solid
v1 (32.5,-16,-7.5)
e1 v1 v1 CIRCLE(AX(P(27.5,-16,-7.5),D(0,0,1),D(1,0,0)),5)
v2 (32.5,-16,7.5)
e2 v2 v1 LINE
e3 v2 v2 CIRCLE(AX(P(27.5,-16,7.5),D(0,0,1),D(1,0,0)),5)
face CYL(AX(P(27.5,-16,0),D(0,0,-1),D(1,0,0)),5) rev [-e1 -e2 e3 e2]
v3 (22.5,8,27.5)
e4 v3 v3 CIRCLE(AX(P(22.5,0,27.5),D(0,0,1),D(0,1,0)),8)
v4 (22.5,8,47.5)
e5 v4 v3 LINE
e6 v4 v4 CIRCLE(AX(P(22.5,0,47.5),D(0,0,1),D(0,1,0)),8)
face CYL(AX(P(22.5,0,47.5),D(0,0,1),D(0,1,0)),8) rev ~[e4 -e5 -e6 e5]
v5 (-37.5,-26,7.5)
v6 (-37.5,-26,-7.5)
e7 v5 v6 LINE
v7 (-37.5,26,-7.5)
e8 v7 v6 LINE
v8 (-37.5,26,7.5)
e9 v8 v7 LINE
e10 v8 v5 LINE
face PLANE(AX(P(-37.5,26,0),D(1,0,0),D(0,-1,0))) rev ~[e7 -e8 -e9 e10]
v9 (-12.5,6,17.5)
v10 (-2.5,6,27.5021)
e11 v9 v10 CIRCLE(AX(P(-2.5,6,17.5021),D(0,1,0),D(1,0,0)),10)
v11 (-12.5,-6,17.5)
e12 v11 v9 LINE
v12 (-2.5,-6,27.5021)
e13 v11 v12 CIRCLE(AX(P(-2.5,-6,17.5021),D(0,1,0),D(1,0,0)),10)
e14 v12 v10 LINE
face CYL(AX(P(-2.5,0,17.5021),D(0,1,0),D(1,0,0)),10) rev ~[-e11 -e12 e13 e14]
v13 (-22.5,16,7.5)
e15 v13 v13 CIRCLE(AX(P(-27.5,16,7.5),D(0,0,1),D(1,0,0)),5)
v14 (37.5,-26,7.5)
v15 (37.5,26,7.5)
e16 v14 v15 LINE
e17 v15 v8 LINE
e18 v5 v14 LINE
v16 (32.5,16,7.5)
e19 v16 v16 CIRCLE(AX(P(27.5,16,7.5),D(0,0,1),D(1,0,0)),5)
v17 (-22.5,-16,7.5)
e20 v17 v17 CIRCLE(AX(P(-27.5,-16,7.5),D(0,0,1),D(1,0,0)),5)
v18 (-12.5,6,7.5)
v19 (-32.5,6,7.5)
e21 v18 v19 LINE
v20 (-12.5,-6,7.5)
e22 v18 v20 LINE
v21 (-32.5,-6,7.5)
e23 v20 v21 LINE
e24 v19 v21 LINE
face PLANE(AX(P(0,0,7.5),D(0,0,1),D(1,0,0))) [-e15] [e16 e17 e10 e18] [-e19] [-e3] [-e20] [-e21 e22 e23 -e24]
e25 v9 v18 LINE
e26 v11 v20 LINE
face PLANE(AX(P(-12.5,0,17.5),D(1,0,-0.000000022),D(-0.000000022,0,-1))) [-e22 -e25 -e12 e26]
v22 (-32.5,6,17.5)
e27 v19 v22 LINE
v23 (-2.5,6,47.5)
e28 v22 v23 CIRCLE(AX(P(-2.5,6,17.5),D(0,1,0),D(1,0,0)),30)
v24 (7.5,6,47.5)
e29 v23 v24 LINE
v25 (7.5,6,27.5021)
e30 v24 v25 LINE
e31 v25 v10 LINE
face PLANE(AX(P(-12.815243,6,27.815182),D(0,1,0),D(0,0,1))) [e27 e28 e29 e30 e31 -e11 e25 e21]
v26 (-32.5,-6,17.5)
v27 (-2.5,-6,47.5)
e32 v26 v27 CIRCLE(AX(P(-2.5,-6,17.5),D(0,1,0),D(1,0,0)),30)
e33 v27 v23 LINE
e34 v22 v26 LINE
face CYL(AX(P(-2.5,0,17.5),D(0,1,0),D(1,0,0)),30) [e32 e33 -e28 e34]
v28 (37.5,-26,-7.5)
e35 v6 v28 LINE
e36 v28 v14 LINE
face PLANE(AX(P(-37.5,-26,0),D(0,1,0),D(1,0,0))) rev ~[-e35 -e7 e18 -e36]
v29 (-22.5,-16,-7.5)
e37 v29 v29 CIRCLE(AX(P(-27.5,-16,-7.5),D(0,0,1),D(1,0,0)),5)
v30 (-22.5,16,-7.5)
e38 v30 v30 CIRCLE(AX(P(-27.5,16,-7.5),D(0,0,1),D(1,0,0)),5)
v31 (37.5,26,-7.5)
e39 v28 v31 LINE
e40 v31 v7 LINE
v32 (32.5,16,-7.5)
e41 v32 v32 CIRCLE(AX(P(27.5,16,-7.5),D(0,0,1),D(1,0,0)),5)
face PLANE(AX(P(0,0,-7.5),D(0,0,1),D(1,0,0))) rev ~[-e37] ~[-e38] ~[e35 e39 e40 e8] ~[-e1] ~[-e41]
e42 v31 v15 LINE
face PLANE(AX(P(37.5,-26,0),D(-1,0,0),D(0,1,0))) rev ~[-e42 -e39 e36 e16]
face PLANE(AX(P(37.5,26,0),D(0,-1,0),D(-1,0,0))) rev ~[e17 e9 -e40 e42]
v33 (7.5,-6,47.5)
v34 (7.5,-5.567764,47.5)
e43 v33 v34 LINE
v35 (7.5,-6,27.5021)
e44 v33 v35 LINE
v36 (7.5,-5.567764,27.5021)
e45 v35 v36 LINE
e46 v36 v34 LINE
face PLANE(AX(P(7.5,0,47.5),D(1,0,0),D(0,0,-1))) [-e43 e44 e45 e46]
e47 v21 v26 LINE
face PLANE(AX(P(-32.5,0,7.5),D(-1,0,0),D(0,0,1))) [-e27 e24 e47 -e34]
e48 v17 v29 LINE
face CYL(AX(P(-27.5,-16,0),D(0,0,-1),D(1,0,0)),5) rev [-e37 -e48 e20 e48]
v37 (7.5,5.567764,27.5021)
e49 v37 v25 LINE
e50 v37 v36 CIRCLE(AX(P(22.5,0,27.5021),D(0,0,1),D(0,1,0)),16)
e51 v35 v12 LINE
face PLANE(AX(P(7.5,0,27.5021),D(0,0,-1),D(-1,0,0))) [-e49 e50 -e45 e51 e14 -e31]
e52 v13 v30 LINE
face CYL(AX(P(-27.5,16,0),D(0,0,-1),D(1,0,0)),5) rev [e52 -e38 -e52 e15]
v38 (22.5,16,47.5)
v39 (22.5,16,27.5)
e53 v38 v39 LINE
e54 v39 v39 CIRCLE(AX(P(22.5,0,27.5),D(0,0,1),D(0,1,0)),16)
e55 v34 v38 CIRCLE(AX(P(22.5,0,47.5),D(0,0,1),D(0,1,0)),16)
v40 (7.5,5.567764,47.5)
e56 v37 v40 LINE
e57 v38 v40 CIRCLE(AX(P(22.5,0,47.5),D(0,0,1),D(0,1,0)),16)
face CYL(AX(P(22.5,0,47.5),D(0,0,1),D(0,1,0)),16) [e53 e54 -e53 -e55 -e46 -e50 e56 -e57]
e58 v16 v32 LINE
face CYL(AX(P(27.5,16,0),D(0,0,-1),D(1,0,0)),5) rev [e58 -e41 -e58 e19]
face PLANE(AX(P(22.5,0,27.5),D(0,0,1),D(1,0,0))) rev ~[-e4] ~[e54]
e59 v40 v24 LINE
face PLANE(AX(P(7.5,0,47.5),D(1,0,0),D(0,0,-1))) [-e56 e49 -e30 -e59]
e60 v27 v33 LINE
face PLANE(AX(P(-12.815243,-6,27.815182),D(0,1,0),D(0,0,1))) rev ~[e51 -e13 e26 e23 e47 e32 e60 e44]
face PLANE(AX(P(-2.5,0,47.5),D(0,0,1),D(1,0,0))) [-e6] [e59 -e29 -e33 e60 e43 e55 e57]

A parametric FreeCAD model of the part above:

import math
import FreeCAD as App
import Part
import Sketcher
from FreeCAD import Vector


def add_polygon(sketch, points):
    """Adds a closed chain of lines whose ends are joined by coincident constraints."""
    first, n = sketch.GeometryCount, len(points)
    for a, b in zip(points, points[1:] + points[:1]):
        sketch.addGeometry(Part.LineSegment(App.Vector(*a, 0), App.Vector(*b, 0)), False)
    for i in range(n):
        sketch.addConstraint(Sketcher.Constraint("Coincident", first + i, 2, first + (i + 1) % n, 1))

doc = App.newDocument("Part")
body = doc.addObject("PartDesign::Body", "Body")

sketch1 = body.newObject("Sketcher::SketchObject", "Sketch")
sketch1.AttachmentSupport = (doc.getObject("XY_Plane"), [""])
sketch1.MapMode = "FlatFace"
add_polygon(sketch1, [(-38, 26), (-38, -26), (38, -26), (38, 26)])
sketch1.addGeometry(Part.Circle(Vector(-28, -16, 0), Vector(0, 0, 1), 5), False)
sketch1.addGeometry(Part.Circle(Vector(28, -16, 0), Vector(0, 0, 1), 5), False)
sketch1.addGeometry(Part.Circle(Vector(-28, 16, 0), Vector(0, 0, 1), 5), False)
sketch1.addGeometry(Part.Circle(Vector(28, 16, 0), Vector(0, 0, 1), 5), False)
sketch1.addConstraint([
    Sketcher.Constraint("Vertical", 0),
    Sketcher.Constraint("Horizontal", 1),
    Sketcher.Constraint("Vertical", 2),
    Sketcher.Constraint("Horizontal", 3),
    Sketcher.Constraint("Equal", 4, 5),
    Sketcher.Constraint("Equal", 5, 6),
    Sketcher.Constraint("Equal", 6, 7),
    Sketcher.Constraint("Symmetric", 5, 3, 6, 3, -1, 1),
    Sketcher.Constraint("Symmetric", 4, 3, 7, 3, -1, 1),
    Sketcher.Constraint("Symmetric", 0, 2, 2, 2, -1, 1),
    Sketcher.Constraint("Symmetric", 4, 3, 5, 3, -2),
    Sketcher.Constraint("Diameter", 4, 10.0),
    Sketcher.Constraint("DistanceX", 1, 1, 1, 2, 75.0),
    Sketcher.Constraint("DistanceY", 0, 2, 0, 1, 52.0),
    Sketcher.Constraint("DistanceY", 4, 3, -1, 1, 16.0),
    Sketcher.Constraint("DistanceX", 4, 3, 5, 3, 55.0),
])
pad1 = body.newObject("PartDesign::Pad", "Pad")
pad1.Profile = sketch1
pad1.Length = 15
pad1.Midplane = True

sketch2 = body.newObject("Sketcher::SketchObject", "Sketch001")
sketch2.AttachmentSupport = (doc.getObject("XZ_Plane"), [""])
sketch2.MapMode = "FlatFace"
sketch2.addGeometry([
    Part.ArcOfCircle(Part.Circle(Vector(-2.5, 17.5, 0), Vector(0, 0, 1), 30), math.radians(90), math.radians(180)),
    Part.LineSegment(Vector(-32.5, 17.5, 0), Vector(-32.5, 7.5, 0)),
    Part.LineSegment(Vector(-32.5, 7.5, 0), Vector(-12.5, 7.5, 0)),
    Part.LineSegment(Vector(-12.5, 7.5, 0), Vector(-12.5, 17.5, 0)),
    Part.ArcOfCircle(Part.Circle(Vector(-2.5, 17.5021, 0), Vector(0, 0, 1), 10), math.radians(90), math.radians(180.012032)),
    Part.LineSegment(Vector(-2.5, 27.5021, 0), Vector(7.5, 27.5021, 0)),
    Part.LineSegment(Vector(7.5, 27.5021, 0), Vector(7.5, 47.5, 0)),
    Part.LineSegment(Vector(7.5, 47.5, 0), Vector(-2.5, 47.5, 0)),
], False)
sketch2.addConstraint([
    Sketcher.Constraint("Coincident", 0, 2, 1, 1),
    Sketcher.Constraint("Coincident", 1, 2, 2, 1),
    Sketcher.Constraint("Coincident", 2, 2, 3, 1),
    Sketcher.Constraint("Coincident", 3, 2, 4, 2),
    Sketcher.Constraint("Coincident", 4, 1, 5, 1),
    Sketcher.Constraint("Coincident", 5, 2, 6, 1),
    Sketcher.Constraint("Coincident", 6, 2, 7, 1),
    Sketcher.Constraint("Coincident", 7, 2, 0, 1),
    Sketcher.Constraint("Vertical", 1),
    Sketcher.Constraint("Horizontal", 2),
    Sketcher.Constraint("Vertical", 3),
    Sketcher.Constraint("Horizontal", 5),
    Sketcher.Constraint("Vertical", 6),
    Sketcher.Constraint("Horizontal", 7),
    Sketcher.Constraint("Radius", 0, 30.0),
    Sketcher.Constraint("Radius", 4, 10.0),
    Sketcher.Constraint("DistanceX", 2, 1, 2, 2, 20.0),
    Sketcher.Constraint("DistanceX", 5, 1, 5, 2, 10.0),
    Sketcher.Constraint("DistanceX", 7, 2, 7, 1, 10.0),
    Sketcher.Constraint("DistanceY", 1, 2, 1, 1, 10.0),
    Sketcher.Constraint("DistanceY", 3, 1, 3, 2, 10.0),
    Sketcher.Constraint("DistanceY", 1, 2, 0, 3, 10.0),
    Sketcher.Constraint("DistanceX", 3, 2, 4, 1, 10.0),
    Sketcher.Constraint("DistanceX", 0, 3, -1, 1, 2.5),
    Sketcher.Constraint("DistanceY", -1, 1, 0, 3, 17.5),
    Sketcher.Constraint("DistanceY", 6, 1, 6, 2, 19.998),
])
pad2 = body.newObject("PartDesign::Pad", "Pad001")
pad2.Profile = sketch2
pad2.Length = 12
pad2.Midplane = True

sketch3 = body.newObject("Sketcher::SketchObject", "Sketch002")
sketch3.AttachmentSupport = (doc.getObject("XY_Plane"), [""])
sketch3.MapMode = "FlatFace"
sketch3.AttachmentOffset = App.Placement(Vector(0, 0, 47.5), App.Rotation())
sketch3.addGeometry([
    Part.Circle(Vector(22, 0, 0), Vector(0, 0, 1), 16),
    Part.Circle(Vector(22, 0, 0), Vector(0, 0, 1), 8),
], False)
sketch3.addConstraint([
    Sketcher.Constraint("Coincident", 1, 3, 0, 3),
    Sketcher.Constraint("PointOnObject", 0, 3, -1),
    Sketcher.Constraint("Diameter", 0, 32.0),
    Sketcher.Constraint("Diameter", 1, 16.0),
    Sketcher.Constraint("DistanceX", -1, 1, 0, 3, 22.5),
])
pad3 = body.newObject("PartDesign::Pad", "Pad002")
pad3.Profile = sketch3
pad3.Length = 20
pad3.Reversed = True

doc.recompute()
